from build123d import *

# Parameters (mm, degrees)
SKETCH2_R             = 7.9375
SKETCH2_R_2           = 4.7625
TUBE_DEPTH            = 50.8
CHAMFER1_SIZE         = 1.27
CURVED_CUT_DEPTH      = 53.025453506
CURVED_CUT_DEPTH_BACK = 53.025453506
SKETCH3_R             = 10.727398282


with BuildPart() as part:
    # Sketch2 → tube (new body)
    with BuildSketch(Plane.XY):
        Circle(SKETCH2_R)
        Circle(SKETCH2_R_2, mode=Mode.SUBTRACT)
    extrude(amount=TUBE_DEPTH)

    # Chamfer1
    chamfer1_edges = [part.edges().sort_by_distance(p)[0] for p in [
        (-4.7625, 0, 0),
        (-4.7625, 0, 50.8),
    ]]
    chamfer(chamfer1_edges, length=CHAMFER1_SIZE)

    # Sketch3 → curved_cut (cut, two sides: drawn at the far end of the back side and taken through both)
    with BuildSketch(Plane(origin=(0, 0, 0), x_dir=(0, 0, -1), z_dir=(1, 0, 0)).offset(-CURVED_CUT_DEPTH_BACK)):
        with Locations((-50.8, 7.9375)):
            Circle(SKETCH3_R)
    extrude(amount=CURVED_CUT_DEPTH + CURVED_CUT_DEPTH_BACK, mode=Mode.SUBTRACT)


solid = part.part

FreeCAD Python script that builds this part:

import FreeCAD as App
import Part
import Sketcher
from FreeCAD import Vector
Q = App.Units.Quantity


def edges_at(feature, points):
    """Names of the edges that pass closest to the given points."""
    edges = feature.Shape.Edges
    near = lambda p: min(range(len(edges)), key=lambda i: edges[i].distToShape(Part.Vertex(*p))[0])
    return sorted({f"Edge{near(p) + 1}" for p in points})

doc = App.newDocument("Part")
body = doc.addObject("PartDesign::Body", "Body")

# Sketch on XY plane
sketch1 = body.newObject("Sketcher::SketchObject", "Sketch")
sketch1.AttachmentSupport = (doc.getObject("XY_Plane"), [""])
sketch1.MapMode = "FlatFace"
sketch1.addGeometry([
    Part.Circle(Vector(0, 0, 0), Vector(0, 0, 1), 7.9),
    Part.Circle(Vector(0, 0, 0), Vector(0, 0, 1), 4.8),
], False)
sketch1.addConstraint([
    Sketcher.Constraint("Coincident", 0, 3, -1, 1),
    Sketcher.Constraint("Coincident", 1, 3, -1, 1),
    Sketcher.Constraint("Diameter", 0, Q("0.625 in")),
    Sketcher.Constraint("Diameter", 1, Q("0.375 in")),
])
pad1 = body.newObject("PartDesign::Pad", "Pad")
pad1.Profile = sketch1
pad1.Length = Q("2 in")
doc.recompute()

chamfer = body.newObject("PartDesign::Chamfer", "Chamfer")
chamfer.Base = (pad1, edges_at(pad1, [(-4.763, 0, 0), (-4.763, 0, 50.8)]))
chamfer.Size = Q("0.05 in")

# Sketch on YZ plane
sketch2 = body.newObject("Sketcher::SketchObject", "Sketch001")
sketch2.AttachmentSupport = (doc.getObject("YZ_Plane"), [""])
sketch2.MapMode = "FlatFace"
sketch2.addGeometry(Part.Circle(Vector(8, 51, 0), Vector(0, 0, 1), 11), False)
sketch2.addConstraint([
    Sketcher.Constraint("DistanceY", -1, 1, 0, 3, Q("2 in")),
    Sketcher.Constraint("DistanceX", -1, 1, 0, 3, Q("0.3125 in")),
    Sketcher.Constraint("Diameter", 0, Q("21.454797 mm")),
])
pocket1 = body.newObject("PartDesign::Pocket", "Pocket")
pocket1.Profile = sketch2
pocket1.Type = "ThroughAll"
pocket1.Midplane = True

doc.recompute()
